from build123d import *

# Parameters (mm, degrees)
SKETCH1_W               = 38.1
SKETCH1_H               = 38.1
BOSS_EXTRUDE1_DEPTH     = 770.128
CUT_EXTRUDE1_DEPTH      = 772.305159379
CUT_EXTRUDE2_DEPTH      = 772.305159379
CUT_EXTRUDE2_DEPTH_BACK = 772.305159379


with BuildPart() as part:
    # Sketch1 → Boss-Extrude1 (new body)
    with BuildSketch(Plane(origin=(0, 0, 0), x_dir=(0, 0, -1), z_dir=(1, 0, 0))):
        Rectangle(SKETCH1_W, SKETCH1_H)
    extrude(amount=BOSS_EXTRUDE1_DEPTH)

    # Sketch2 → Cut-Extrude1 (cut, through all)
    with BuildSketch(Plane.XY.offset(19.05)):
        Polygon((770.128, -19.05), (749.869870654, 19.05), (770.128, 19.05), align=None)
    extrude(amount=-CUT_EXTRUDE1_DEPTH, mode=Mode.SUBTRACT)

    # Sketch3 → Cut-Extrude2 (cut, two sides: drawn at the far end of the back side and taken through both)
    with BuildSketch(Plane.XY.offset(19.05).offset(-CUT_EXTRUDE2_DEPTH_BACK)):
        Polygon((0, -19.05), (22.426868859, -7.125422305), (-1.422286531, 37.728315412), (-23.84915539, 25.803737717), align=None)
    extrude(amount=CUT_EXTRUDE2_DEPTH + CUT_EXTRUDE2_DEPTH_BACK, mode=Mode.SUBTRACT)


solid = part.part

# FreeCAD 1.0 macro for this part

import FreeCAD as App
import Part
import Sketcher

V = App.Vector
Q = App.Units.Quantity

doc = App.newDocument("Part")
body = doc.addObject("PartDesign::Body", "Body")

sketch1 = body.newObject("Sketcher::SketchObject", "Sketch")
sketch1.AttachmentSupport = (doc.getObject("YZ_Plane"), [""])
sketch1.MapMode = "FlatFace"
sketch1.addGeometry([
    Part.LineSegment(V(19, 19, 0), V(-19, 19, 0)),
    Part.LineSegment(V(-19, 19, 0), V(-19, -19, 0)),
    Part.LineSegment(V(-19, -19, 0), V(19, -19, 0)),
    Part.LineSegment(V(19, -19, 0), V(19, 19, 0)),
], False)
sketch1.addConstraint([
    Sketcher.Constraint("Coincident", 0, 2, 1, 1),
    Sketcher.Constraint("Coincident", 1, 2, 2, 1),
    Sketcher.Constraint("Coincident", 2, 2, 3, 1),
    Sketcher.Constraint("Coincident", 3, 2, 0, 1),
    Sketcher.Constraint("Horizontal", 0),
    Sketcher.Constraint("Vertical", 1),
    Sketcher.Constraint("Horizontal", 2),
    Sketcher.Constraint("Vertical", 3),
    Sketcher.Constraint("Symmetric", 0, 2, 2, 2, -1, 1),
    Sketcher.Constraint("Equal", 2, 1),
    Sketcher.Constraint("DistanceX", 0, 2, 0, 1, Q("1.5 in")),
])
pad1 = body.newObject("PartDesign::Pad", "Pad")
pad1.Profile = sketch1
pad1.Length = Q("30.32 in")

sketch2 = body.newObject("Sketcher::SketchObject", "Sketch001")
sketch2.AttachmentSupport = (doc.getObject("XY_Plane"), [""])
sketch2.MapMode = "FlatFace"
sketch2.AttachmentOffset = App.Placement(V(0, 0, 0.75 * 25.4), App.Rotation())
sketch2.addGeometry([
    Part.LineSegment(V(750, 19, 0), V(770, -19, 0)),
    Part.LineSegment(V(770, -19, 0), V(770, 19, 0)),
    Part.LineSegment(V(770, 19, 0), V(750, 19, 0)),
], False)
sketch2.addConstraint([
    Sketcher.Constraint("Coincident", 0, 2, 1, 1),
    Sketcher.Constraint("Coincident", 1, 2, 2, 1),
    Sketcher.Constraint("Coincident", 2, 2, 0, 1),
    Sketcher.Constraint("Vertical", 1),
    Sketcher.Constraint("Horizontal", 2),
    Sketcher.Constraint("DistanceY", 1, 1, 1, 2, Q("1.5 in")),
    Sketcher.Constraint("Angle", 0, Q("-62 deg")),
    Sketcher.Constraint("DistanceX", -1, 1, 0, 2, Q("30.32 in")),
    Sketcher.Constraint("DistanceY", 0, 2, -1, 1, Q("0.75 in")),
])
pocket1 = body.newObject("PartDesign::Pocket", "Pocket")
pocket1.Profile = sketch2
pocket1.Type = "ThroughAll"

sketch3 = body.newObject("Sketcher::SketchObject", "Sketch002")
sketch3.AttachmentSupport = (doc.getObject("XY_Plane"), [""])
sketch3.MapMode = "FlatFace"
sketch3.AttachmentOffset = App.Placement(V(0, 0, 0.75 * 25.4), App.Rotation())
sketch3.addGeometry([
    Part.LineSegment(V(0, -19, 0), V(22, -7, 0)),
    Part.LineSegment(V(22, -7, 0), V(-1, 38, 0)),
    Part.LineSegment(V(-1, 38, 0), V(-24, 26, 0)),
    Part.LineSegment(V(-24, 26, 0), V(0, -19, 0)),
], False)
sketch3.addConstraint([
    Sketcher.Constraint("Coincident", 0, 2, 1, 1),
    Sketcher.Constraint("Coincident", 1, 2, 2, 1),
    Sketcher.Constraint("Coincident", 2, 2, 3, 1),
    Sketcher.Constraint("Coincident", 3, 2, 0, 1),
    Sketcher.Constraint("PointOnObject", 3, 2, -2),
    Sketcher.Constraint("Perpendicular", 0, 1),
    Sketcher.Constraint("Perpendicular", 1, 2),
    Sketcher.Constraint("Perpendicular", 2, 3),
    Sketcher.Constraint("Distance", 0, Q("1 in")),
    Sketcher.Constraint("Distance", 1, Q("2 in")),
    Sketcher.Constraint("Angle", 0, Q("28 deg")),
    Sketcher.Constraint("DistanceY", 3, 2, -1, 1, Q("0.75 in")),
])
pocket2 = body.newObject("PartDesign::Pocket", "Pocket001")
pocket2.Profile = sketch3
pocket2.Type = "ThroughAll"
pocket2.Midplane = True

doc.recompute()
